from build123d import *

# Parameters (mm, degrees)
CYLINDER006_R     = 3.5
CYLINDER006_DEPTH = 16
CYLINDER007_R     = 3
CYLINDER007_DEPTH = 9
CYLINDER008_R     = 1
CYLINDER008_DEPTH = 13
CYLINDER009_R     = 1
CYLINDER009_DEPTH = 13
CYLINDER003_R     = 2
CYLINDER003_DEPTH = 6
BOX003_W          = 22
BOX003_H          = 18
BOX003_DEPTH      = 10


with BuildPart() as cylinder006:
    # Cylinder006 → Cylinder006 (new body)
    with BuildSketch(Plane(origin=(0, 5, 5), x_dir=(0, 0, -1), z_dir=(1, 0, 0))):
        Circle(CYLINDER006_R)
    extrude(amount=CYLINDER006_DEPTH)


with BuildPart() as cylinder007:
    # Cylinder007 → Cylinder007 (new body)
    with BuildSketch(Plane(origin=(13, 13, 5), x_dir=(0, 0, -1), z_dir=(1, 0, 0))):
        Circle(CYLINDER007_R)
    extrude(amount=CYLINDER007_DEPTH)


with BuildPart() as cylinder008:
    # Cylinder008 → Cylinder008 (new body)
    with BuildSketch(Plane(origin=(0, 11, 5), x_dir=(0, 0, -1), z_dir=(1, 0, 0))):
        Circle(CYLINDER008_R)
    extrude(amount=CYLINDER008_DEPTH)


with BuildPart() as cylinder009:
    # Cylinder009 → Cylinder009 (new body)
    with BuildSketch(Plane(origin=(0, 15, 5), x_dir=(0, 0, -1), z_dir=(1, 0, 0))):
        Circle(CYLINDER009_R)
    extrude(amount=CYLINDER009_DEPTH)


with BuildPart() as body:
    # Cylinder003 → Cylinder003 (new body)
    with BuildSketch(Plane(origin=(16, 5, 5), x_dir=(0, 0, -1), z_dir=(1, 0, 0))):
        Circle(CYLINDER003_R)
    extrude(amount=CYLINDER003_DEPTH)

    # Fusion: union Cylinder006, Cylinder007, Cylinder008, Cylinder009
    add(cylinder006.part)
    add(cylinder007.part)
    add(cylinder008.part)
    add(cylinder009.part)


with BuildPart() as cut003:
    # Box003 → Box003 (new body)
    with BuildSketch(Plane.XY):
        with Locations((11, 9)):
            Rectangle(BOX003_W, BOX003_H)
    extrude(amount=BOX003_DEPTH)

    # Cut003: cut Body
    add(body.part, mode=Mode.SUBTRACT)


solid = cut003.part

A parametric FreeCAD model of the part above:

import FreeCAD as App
import Part
import Sketcher
from FreeCAD import Vector
Q = App.Units.Quantity

doc = App.newDocument("Part")
params = doc.addObject("Spreadsheet::Sheet", "Params")
for row, (alias, value) in enumerate([
    ("sketch1_diameter", "7 mm"),
    ("pad1_length", "16 mm"),
    ("sketch2_diameter", "6 mm"),
    ("pad2_length", "9 mm"),
    ("sketch3_diameter", "2 mm"),
    ("pad3_length", "13 mm"),
    ("sketch4_diameter", "2 mm"),
    ("pad4_length", "13 mm"),
    ("sketch5_diameter", "4 mm"),
    ("pad5_length", "6 mm"),
    ("sketch6_width", "22 mm"),
    ("sketch6_height", "18 mm"),
    ("pad6_length", "10 mm"),
], start=1):
    params.set(f"A{row}", alias)
    params.set(f"B{row}", "=" + value)
    params.setAlias(f"B{row}", alias)

body = doc.addObject("PartDesign::Body", "Body")

sketch1 = body.newObject("Sketcher::SketchObject", "Sketch")
sketch1.AttachmentSupport = (doc.getObject("YZ_Plane"), [""])
sketch1.MapMode = "FlatFace"
sketch1.addGeometry(Part.Circle(Vector(5, 5, 0), Vector(0, 0, 1), 3.5), False)
sketch1.addConstraint([
    Sketcher.Constraint("Diameter", 0, Q("7 mm")),
    Sketcher.Constraint("DistanceX", -1, 1, 0, 3, Q("5 mm")),
    Sketcher.Constraint("DistanceY", -1, 1, 0, 3, Q("5 mm")),
])
sketch1.setExpression("Constraints[0]", "Params.sketch1_diameter")
pad1 = body.newObject("PartDesign::Pad", "Pad")
pad1.Profile = sketch1
pad1.setExpression("Length", "Params.pad1_length")
body2 = doc.addObject("PartDesign::Body", "Body001")

sketch2 = body2.newObject("Sketcher::SketchObject", "Sketch001")
sketch2.AttachmentSupport = (doc.getObject("YZ_Plane001"), [""])
sketch2.MapMode = "FlatFace"
sketch2.AttachmentOffset = App.Placement(Vector(0, 0, 13), App.Rotation())
sketch2.addGeometry(Part.Circle(Vector(13, 5, 0), Vector(0, 0, 1), 3), False)
sketch2.addConstraint([
    Sketcher.Constraint("Diameter", 0, Q("6 mm")),
    Sketcher.Constraint("DistanceX", -1, 1, 0, 3, Q("13 mm")),
    Sketcher.Constraint("DistanceY", -1, 1, 0, 3, Q("5 mm")),
])
sketch2.setExpression("Constraints[0]", "Params.sketch2_diameter")
pad2 = body2.newObject("PartDesign::Pad", "Pad001")
pad2.Profile = sketch2
pad2.setExpression("Length", "Params.pad2_length")
body3 = doc.addObject("PartDesign::Body", "Body002")

sketch3 = body3.newObject("Sketcher::SketchObject", "Sketch002")
sketch3.AttachmentSupport = (doc.getObject("YZ_Plane002"), [""])
sketch3.MapMode = "FlatFace"
sketch3.addGeometry(Part.Circle(Vector(11, 5, 0), Vector(0, 0, 1), 1), False)
sketch3.addConstraint([
    Sketcher.Constraint("Diameter", 0, Q("2 mm")),
    Sketcher.Constraint("DistanceX", -1, 1, 0, 3, Q("11 mm")),
    Sketcher.Constraint("DistanceY", -1, 1, 0, 3, Q("5 mm")),
])
sketch3.setExpression("Constraints[0]", "Params.sketch3_diameter")
pad3 = body3.newObject("PartDesign::Pad", "Pad002")
pad3.Profile = sketch3
pad3.setExpression("Length", "Params.pad3_length")
body4 = doc.addObject("PartDesign::Body", "Body003")

sketch4 = body4.newObject("Sketcher::SketchObject", "Sketch003")
sketch4.AttachmentSupport = (doc.getObject("YZ_Plane003"), [""])
sketch4.MapMode = "FlatFace"
sketch4.addGeometry(Part.Circle(Vector(15, 5, 0), Vector(0, 0, 1), 1), False)
sketch4.addConstraint([
    Sketcher.Constraint("Diameter", 0, Q("2 mm")),
    Sketcher.Constraint("DistanceX", -1, 1, 0, 3, Q("15 mm")),
    Sketcher.Constraint("DistanceY", -1, 1, 0, 3, Q("5 mm")),
])
sketch4.setExpression("Constraints[0]", "Params.sketch4_diameter")
pad4 = body4.newObject("PartDesign::Pad", "Pad003")
pad4.Profile = sketch4
pad4.setExpression("Length", "Params.pad4_length")
body5 = doc.addObject("PartDesign::Body", "Body004")
body5.AllowCompound = True

sketch5 = body5.newObject("Sketcher::SketchObject", "Sketch004")
sketch5.AttachmentSupport = (doc.getObject("YZ_Plane004"), [""])
sketch5.MapMode = "FlatFace"
sketch5.AttachmentOffset = App.Placement(Vector(0, 0, 16), App.Rotation())
sketch5.addGeometry(Part.Circle(Vector(5, 5, 0), Vector(0, 0, 1), 2), False)
sketch5.addConstraint([
    Sketcher.Constraint("Diameter", 0, Q("4 mm")),
    Sketcher.Constraint("DistanceX", -1, 1, 0, 3, Q("5 mm")),
    Sketcher.Constraint("DistanceY", -1, 1, 0, 3, Q("5 mm")),
])
sketch5.setExpression("Constraints[0]", "Params.sketch5_diameter")
pad5 = body5.newObject("PartDesign::Pad", "Pad004")
pad5.Profile = sketch5
pad5.setExpression("Length", "Params.pad5_length")
doc.recompute()

boolean = body5.newObject("PartDesign::Boolean", "Boolean")
boolean.Type = "Fuse"
boolean.addObjects([body])
doc.recompute()

boolean2 = body5.newObject("PartDesign::Boolean", "Boolean001")
boolean2.Type = "Fuse"
boolean2.addObjects([body2])
doc.recompute()

boolean3 = body5.newObject("PartDesign::Boolean", "Boolean002")
boolean3.Type = "Fuse"
boolean3.addObjects([body3])
doc.recompute()

boolean4 = body5.newObject("PartDesign::Boolean", "Boolean003")
boolean4.Type = "Fuse"
boolean4.addObjects([body4])
body6 = doc.addObject("PartDesign::Body", "Body005")

sketch6 = body6.newObject("Sketcher::SketchObject", "Sketch005")
sketch6.AttachmentSupport = (doc.getObject("XY_Plane005"), [""])
sketch6.MapMode = "FlatFace"
sketch6.addGeometry([
    Part.LineSegment(Vector(0, 18, 0), Vector(0, 0, 0)),
    Part.LineSegment(Vector(0, 0, 0), Vector(22, 0, 0)),
    Part.LineSegment(Vector(22, 0, 0), Vector(22, 18, 0)),
    Part.LineSegment(Vector(22, 18, 0), Vector(0, 18, 0)),
], False)
sketch6.addConstraint([
    Sketcher.Constraint("Coincident", 0, 2, 1, 1),
    Sketcher.Constraint("Coincident", 1, 2, 2, 1),
    Sketcher.Constraint("Coincident", 2, 2, 3, 1),
    Sketcher.Constraint("Coincident", 3, 2, 0, 1),
    Sketcher.Constraint("Vertical", 0),
    Sketcher.Constraint("Horizontal", 1),
    Sketcher.Constraint("Vertical", 2),
    Sketcher.Constraint("Horizontal", 3),
    Sketcher.Constraint("Coincident", 0, 2, -1, 1),
    Sketcher.Constraint("DistanceX", 1, 1, 1, 2, Q("22 mm")),
    Sketcher.Constraint("DistanceY", 0, 2, 0, 1, Q("18 mm")),
])
sketch6.setExpression("Constraints[9]", "Params.sketch6_width")
sketch6.setExpression("Constraints[10]", "Params.sketch6_height")
pad6 = body6.newObject("PartDesign::Pad", "Pad005")
pad6.Profile = sketch6
pad6.setExpression("Length", "Params.pad6_length")
doc.recompute()

boolean5 = body6.newObject("PartDesign::Boolean", "Boolean004")
boolean5.Type = "Cut"
boolean5.addObjects([body5])

doc.recompute()
